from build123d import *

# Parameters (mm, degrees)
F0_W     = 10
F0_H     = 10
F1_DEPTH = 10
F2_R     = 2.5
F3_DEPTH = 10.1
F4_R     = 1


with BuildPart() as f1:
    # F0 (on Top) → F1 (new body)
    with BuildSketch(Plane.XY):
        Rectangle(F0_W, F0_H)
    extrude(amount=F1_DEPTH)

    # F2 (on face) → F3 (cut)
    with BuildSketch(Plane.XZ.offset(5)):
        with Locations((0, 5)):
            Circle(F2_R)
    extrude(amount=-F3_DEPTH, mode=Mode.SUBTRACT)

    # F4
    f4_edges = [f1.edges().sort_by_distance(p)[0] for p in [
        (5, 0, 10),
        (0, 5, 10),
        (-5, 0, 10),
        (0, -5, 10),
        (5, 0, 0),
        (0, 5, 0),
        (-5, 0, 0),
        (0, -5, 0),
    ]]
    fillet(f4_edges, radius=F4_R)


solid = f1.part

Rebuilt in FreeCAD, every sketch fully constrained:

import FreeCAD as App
import Part
import Sketcher
from FreeCAD import Vector
Q = App.Units.Quantity


def edges_at(feature, points):
    """Names of the edges that pass closest to the given points."""
    edges = feature.Shape.Edges
    near = lambda p: min(range(len(edges)), key=lambda i: edges[i].distToShape(Part.Vertex(*p))[0])
    return sorted({f"Edge{near(p) + 1}" for p in points})


def add_polygon(sketch, points):
    """Adds a closed chain of lines whose ends are joined by coincident constraints."""
    first, n = sketch.GeometryCount, len(points)
    for a, b in zip(points, points[1:] + points[:1]):
        sketch.addGeometry(Part.LineSegment(App.Vector(*a, 0), App.Vector(*b, 0)), False)
    for i in range(n):
        sketch.addConstraint(Sketcher.Constraint("Coincident", first + i, 2, first + (i + 1) % n, 1))

doc = App.newDocument("Part")
body = doc.addObject("PartDesign::Body", "Body")

# Sketch on XY plane
sketch1 = body.newObject("Sketcher::SketchObject", "Sketch")
sketch1.AttachmentSupport = (doc.getObject("XY_Plane"), [""])
sketch1.MapMode = "FlatFace"
add_polygon(sketch1, [(-5, 5), (-5, -5), (5, -5), (5, 5)])  # lines 0-3
sketch1.addConstraint(Sketcher.Constraint("Vertical", 0))
sketch1.addConstraint(Sketcher.Constraint("Horizontal", 1))
sketch1.addConstraint(Sketcher.Constraint("Vertical", 2))
sketch1.addConstraint(Sketcher.Constraint("Horizontal", 3))
sketch1.addConstraint(Sketcher.Constraint("Symmetric", 0, 2, 2, 2, -1, 1))
sketch1.addConstraint(Sketcher.Constraint("Equal", 3, 0))
sketch1.addConstraint(Sketcher.Constraint("DistanceX", 1, 1, 1, 2, Q("10 mm")))
pad1 = body.newObject("PartDesign::Pad", "Pad")
pad1.Profile = sketch1
pad1.Length = 10

# Sketch on XZ plane
sketch2 = body.newObject("Sketcher::SketchObject", "Sketch001")
sketch2.AttachmentSupport = (doc.getObject("XZ_Plane"), [""])
sketch2.MapMode = "FlatFace"
sketch2.AttachmentOffset = App.Placement(Vector(0, 0, 5), App.Rotation())
sketch2.addGeometry(Part.Circle(Vector(0, 5, 0), Vector(0, 0, 1), 2.5), False)
sketch2.addConstraint(Sketcher.Constraint("PointOnObject", 0, 3, -2))
sketch2.addConstraint(Sketcher.Constraint("Diameter", 0, Q("5 mm")))
sketch2.addConstraint(Sketcher.Constraint("DistanceY", -1, 1, 0, 3, Q("5 mm")))
pocket1 = body.newObject("PartDesign::Pocket", "Pocket")
pocket1.Profile = sketch2
pocket1.Length = 10.1
doc.recompute()

fillet = body.newObject("PartDesign::Fillet", "Fillet")
fillet.Base = (pocket1, edges_at(pocket1, [
    (5, 0, 10),
    (0, 5, 10),
    (-5, 0, 10),
    (0, -5, 10),
    (5, 0, 0),
    (0, 5, 0),
    (-5, 0, 0),
    (0, -5, 0),
]))
fillet.Radius = 1

doc.recompute()
